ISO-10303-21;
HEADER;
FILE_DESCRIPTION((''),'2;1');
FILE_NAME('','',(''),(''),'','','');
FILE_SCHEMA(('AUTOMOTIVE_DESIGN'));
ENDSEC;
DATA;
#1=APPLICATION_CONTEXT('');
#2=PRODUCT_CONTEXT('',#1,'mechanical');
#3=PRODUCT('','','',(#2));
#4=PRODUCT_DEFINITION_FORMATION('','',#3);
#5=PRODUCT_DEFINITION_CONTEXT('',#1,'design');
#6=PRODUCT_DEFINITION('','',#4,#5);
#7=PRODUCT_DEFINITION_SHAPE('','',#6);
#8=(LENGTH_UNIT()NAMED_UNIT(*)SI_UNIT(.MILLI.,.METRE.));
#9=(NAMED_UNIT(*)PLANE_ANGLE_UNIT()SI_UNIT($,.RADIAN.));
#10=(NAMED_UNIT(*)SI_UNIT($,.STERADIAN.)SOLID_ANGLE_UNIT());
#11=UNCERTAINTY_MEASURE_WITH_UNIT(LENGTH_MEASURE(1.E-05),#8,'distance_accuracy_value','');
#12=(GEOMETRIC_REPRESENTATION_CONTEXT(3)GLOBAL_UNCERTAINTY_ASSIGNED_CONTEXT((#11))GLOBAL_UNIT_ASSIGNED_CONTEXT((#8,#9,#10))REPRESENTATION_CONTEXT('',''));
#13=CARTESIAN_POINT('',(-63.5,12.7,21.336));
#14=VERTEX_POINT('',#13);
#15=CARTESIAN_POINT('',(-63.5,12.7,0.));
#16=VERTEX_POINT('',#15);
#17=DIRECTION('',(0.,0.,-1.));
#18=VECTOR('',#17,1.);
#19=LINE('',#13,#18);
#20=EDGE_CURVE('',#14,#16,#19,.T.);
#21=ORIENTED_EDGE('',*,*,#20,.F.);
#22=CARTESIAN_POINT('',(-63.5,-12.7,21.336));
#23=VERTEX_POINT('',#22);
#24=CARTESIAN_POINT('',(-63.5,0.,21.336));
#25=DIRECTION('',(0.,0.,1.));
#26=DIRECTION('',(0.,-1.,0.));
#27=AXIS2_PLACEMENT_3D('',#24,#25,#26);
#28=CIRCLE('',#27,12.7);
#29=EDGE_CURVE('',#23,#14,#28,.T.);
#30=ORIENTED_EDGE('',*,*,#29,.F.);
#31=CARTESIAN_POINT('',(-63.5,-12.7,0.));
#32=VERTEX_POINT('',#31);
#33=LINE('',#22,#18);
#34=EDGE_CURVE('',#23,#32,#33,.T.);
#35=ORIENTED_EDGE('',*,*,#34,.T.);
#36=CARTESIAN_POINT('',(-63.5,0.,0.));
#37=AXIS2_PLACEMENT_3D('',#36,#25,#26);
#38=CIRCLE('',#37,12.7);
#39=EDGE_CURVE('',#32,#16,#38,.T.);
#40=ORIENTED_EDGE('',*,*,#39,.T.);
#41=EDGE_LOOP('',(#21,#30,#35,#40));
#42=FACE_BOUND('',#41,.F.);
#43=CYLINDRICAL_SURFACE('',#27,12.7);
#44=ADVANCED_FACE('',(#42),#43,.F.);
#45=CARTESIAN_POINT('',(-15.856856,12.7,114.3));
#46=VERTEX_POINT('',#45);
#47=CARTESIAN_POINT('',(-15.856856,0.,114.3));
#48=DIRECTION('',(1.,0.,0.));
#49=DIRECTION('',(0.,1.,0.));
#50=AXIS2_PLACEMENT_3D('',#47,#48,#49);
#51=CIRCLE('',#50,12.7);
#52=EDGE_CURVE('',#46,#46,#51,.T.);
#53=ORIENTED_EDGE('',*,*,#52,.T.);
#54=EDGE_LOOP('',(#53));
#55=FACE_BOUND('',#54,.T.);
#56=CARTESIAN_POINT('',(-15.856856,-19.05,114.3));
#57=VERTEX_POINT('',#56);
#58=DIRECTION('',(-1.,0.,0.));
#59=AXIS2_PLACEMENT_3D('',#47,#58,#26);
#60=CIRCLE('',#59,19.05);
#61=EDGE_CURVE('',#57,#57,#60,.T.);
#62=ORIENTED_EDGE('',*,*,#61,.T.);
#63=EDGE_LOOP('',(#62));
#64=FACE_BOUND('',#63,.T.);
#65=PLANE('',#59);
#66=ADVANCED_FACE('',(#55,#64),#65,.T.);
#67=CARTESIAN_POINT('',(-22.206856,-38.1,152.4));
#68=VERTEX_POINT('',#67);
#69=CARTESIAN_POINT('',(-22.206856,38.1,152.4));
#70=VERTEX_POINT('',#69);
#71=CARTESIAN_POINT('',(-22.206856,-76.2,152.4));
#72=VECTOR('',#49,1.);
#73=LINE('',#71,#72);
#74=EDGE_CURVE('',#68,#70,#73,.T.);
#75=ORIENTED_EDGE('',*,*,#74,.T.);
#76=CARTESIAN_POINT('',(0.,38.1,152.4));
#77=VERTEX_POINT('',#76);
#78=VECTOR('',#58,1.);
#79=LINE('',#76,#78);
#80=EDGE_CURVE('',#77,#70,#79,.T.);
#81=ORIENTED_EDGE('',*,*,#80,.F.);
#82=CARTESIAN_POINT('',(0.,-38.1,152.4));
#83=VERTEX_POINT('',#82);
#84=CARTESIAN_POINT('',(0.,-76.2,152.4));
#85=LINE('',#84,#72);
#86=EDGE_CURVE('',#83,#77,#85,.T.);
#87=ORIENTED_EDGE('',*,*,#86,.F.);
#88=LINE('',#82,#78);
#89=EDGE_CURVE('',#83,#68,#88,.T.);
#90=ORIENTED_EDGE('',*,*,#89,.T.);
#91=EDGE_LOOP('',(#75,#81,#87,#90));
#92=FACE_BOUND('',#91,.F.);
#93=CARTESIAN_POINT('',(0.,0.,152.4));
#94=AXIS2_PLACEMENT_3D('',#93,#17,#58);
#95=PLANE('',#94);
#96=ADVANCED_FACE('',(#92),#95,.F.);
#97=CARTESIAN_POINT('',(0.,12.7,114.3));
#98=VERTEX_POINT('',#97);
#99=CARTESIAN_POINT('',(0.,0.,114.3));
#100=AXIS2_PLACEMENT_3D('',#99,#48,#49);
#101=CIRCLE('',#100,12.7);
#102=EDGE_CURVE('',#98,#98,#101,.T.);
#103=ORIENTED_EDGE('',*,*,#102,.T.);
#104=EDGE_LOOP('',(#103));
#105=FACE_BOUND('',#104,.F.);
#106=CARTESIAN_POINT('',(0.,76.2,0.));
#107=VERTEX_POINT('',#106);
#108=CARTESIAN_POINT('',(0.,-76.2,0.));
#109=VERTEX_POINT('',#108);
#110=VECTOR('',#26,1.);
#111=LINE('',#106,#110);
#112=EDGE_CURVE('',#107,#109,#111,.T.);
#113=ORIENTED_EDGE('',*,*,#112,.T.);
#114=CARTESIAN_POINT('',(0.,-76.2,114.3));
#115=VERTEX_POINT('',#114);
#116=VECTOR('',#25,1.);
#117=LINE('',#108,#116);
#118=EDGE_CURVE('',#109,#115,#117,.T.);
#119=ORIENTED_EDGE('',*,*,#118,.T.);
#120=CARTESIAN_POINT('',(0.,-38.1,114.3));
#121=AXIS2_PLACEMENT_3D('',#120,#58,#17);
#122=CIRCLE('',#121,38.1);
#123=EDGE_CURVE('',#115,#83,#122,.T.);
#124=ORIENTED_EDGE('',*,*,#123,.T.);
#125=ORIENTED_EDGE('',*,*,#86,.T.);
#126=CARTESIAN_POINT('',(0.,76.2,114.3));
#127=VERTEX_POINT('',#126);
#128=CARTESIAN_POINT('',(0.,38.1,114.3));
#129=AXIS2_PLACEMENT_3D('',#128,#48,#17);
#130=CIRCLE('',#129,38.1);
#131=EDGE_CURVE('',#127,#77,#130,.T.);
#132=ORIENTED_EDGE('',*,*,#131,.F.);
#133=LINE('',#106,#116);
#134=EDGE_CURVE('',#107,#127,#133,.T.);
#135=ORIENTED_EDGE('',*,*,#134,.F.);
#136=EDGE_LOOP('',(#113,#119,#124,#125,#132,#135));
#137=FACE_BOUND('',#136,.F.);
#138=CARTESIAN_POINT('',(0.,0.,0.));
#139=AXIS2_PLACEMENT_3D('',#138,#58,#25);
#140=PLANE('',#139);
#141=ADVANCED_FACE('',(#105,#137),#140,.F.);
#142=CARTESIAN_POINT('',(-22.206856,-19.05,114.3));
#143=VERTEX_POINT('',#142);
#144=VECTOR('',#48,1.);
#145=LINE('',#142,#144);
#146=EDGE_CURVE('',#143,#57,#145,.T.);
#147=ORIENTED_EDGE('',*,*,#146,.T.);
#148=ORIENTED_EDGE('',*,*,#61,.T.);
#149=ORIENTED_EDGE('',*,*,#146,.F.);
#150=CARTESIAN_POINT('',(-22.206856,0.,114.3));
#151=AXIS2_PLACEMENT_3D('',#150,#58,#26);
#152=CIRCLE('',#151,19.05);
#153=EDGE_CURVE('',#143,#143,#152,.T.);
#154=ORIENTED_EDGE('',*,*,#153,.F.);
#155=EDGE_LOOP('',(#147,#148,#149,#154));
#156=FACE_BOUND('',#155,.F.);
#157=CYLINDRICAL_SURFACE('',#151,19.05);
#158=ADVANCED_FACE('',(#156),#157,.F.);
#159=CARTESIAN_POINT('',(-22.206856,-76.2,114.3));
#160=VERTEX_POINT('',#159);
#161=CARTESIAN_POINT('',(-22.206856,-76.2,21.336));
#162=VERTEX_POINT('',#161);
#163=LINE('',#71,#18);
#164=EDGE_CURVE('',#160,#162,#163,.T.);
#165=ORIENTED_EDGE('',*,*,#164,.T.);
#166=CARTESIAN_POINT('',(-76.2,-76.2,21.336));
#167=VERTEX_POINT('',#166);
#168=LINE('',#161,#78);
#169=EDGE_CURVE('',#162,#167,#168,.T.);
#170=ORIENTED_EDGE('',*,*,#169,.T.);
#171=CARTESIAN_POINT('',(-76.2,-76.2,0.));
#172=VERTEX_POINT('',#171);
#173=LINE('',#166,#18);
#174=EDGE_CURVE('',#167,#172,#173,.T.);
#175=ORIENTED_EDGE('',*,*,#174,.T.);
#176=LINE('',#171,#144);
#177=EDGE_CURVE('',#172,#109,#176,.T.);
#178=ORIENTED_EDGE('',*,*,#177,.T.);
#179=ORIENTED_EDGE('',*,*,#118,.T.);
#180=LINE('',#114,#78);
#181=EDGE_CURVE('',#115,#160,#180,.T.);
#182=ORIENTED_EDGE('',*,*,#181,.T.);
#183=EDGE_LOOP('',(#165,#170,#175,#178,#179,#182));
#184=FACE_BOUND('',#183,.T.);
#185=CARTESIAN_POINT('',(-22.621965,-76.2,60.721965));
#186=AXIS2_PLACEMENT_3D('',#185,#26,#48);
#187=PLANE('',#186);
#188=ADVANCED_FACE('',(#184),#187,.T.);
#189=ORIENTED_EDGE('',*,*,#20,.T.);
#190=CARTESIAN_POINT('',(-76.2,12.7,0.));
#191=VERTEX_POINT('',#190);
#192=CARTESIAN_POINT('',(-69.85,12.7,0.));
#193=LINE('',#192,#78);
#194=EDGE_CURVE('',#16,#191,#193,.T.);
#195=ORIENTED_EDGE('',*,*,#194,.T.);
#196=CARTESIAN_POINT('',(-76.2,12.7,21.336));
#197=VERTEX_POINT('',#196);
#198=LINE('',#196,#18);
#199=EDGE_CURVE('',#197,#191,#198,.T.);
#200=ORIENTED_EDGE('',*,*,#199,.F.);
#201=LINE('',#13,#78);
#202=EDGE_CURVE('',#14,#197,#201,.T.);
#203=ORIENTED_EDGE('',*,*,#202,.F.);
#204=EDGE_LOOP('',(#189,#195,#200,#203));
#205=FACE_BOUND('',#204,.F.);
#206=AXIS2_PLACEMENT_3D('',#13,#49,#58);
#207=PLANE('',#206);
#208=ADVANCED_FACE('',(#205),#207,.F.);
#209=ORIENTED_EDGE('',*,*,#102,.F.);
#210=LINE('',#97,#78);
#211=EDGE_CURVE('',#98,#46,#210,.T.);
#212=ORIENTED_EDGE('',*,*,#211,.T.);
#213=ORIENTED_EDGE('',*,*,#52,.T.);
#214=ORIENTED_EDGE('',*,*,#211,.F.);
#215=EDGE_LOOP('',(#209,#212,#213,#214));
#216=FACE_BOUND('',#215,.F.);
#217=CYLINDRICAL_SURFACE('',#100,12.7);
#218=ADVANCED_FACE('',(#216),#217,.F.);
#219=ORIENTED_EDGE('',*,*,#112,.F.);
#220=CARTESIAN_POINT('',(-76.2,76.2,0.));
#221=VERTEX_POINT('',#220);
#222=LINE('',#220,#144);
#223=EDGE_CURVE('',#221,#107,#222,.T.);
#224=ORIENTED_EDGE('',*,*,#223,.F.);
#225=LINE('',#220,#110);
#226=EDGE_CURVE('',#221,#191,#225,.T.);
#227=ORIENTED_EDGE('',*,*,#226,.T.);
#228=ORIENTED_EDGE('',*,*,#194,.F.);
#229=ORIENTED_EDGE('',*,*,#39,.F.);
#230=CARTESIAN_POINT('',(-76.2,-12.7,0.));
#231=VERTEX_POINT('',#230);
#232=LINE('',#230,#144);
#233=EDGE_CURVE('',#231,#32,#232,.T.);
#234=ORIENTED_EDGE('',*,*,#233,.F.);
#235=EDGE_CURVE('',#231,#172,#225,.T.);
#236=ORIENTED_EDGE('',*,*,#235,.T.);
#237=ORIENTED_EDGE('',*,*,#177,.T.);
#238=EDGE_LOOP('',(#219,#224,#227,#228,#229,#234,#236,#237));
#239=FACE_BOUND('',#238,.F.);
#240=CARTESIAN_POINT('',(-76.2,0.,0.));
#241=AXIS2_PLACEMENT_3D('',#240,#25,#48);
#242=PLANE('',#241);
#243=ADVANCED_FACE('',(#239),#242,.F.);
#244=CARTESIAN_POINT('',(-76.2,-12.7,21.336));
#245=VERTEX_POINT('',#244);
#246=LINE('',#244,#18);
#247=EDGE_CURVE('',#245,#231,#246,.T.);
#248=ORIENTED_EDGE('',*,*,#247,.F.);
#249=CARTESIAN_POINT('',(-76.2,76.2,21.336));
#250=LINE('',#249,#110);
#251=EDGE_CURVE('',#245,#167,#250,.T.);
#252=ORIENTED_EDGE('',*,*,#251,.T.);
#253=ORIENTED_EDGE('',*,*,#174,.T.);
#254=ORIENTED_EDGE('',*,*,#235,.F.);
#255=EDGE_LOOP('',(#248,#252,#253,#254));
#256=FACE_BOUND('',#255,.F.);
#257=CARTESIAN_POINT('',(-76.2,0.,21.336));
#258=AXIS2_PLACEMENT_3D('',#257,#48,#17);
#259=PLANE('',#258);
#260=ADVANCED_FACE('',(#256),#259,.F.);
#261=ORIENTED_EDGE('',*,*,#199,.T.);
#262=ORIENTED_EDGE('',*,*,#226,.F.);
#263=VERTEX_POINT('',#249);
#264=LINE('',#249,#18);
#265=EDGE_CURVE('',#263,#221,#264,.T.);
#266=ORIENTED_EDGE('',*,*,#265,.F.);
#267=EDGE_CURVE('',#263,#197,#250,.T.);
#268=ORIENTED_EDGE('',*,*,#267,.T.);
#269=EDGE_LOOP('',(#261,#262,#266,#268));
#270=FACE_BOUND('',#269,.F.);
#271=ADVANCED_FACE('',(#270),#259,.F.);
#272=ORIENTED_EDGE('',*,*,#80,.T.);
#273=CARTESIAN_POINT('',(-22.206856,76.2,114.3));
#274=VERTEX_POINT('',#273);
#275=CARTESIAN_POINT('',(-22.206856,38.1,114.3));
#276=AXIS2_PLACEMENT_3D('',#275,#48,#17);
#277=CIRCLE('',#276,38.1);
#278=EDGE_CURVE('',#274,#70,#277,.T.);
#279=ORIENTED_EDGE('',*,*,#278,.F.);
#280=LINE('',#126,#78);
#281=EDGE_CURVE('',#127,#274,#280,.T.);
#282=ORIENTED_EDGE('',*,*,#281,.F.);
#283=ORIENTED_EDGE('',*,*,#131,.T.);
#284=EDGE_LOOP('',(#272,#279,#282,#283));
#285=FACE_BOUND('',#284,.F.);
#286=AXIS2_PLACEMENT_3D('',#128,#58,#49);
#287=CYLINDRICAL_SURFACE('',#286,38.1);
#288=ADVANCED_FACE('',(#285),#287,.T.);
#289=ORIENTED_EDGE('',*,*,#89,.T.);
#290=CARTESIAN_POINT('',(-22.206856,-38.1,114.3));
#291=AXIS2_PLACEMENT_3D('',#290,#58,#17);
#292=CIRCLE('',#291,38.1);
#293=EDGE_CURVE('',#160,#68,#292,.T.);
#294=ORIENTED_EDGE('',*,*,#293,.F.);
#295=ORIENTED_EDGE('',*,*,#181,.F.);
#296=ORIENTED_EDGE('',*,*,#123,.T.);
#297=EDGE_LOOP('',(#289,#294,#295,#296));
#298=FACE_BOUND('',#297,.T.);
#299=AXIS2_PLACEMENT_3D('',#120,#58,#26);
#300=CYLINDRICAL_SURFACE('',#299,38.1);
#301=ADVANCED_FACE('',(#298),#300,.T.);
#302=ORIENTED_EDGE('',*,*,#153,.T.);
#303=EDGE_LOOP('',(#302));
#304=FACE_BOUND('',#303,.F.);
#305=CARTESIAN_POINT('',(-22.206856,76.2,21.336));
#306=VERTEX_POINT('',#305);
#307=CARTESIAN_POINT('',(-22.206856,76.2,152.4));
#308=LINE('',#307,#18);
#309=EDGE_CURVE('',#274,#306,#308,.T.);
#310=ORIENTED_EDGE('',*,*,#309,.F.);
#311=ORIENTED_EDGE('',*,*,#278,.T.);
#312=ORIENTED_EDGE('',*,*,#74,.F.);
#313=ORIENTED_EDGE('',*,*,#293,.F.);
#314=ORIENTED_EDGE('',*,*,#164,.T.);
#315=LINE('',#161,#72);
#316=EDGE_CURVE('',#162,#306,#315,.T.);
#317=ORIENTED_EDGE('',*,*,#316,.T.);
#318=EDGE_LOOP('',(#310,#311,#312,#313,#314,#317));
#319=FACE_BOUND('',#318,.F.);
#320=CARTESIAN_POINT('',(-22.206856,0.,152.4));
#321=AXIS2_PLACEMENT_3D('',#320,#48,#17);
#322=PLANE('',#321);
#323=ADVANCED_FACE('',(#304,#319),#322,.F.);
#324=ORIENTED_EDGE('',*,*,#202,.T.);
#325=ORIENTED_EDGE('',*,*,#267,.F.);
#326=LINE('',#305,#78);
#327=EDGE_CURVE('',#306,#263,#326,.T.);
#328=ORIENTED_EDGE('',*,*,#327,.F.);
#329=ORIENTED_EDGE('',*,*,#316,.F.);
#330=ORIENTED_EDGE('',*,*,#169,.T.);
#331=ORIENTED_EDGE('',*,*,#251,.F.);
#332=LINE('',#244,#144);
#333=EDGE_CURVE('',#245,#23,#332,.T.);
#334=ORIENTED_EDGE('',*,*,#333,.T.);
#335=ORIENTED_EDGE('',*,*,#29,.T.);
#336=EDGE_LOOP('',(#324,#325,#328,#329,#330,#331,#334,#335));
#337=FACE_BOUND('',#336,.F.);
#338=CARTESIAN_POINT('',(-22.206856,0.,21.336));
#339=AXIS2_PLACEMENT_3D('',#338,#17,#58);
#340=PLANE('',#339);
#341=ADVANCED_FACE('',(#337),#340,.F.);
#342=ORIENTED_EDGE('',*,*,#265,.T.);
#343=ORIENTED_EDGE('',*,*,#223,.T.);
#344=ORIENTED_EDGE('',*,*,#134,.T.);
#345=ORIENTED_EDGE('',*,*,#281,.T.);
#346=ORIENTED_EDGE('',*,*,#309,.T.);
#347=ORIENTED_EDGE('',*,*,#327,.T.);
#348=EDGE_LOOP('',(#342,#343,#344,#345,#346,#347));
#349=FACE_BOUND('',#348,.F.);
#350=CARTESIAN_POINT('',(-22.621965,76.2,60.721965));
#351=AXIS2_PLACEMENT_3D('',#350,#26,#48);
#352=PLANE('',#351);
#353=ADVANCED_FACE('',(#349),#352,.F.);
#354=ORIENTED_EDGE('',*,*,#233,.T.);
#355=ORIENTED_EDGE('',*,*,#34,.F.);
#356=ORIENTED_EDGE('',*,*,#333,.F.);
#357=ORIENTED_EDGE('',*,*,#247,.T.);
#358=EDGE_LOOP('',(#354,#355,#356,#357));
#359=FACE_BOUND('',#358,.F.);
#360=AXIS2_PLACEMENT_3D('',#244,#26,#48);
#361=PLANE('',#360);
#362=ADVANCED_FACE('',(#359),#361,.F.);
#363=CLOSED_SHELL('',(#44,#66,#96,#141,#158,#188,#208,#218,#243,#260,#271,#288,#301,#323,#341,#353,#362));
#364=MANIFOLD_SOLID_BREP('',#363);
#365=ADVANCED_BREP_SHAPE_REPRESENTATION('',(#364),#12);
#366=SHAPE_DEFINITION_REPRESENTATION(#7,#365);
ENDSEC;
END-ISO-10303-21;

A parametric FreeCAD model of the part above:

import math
import FreeCAD as App
import Part
import Sketcher

V = App.Vector
Q = App.Units.Quantity


def edges_at(feature, points):
    """Names of the edges that pass closest to the given points."""
    edges = feature.Shape.Edges
    near = lambda p: min(range(len(edges)), key=lambda i: edges[i].distToShape(Part.Vertex(*p))[0])
    return sorted({f"Edge{near(p) + 1}" for p in points})


def add_polygon(sketch, points):
    """Adds a closed chain of lines whose ends are joined by coincident constraints."""
    first, n = sketch.GeometryCount, len(points)
    for a, b in zip(points, points[1:] + points[:1]):
        sketch.addGeometry(Part.LineSegment(App.Vector(*a, 0), App.Vector(*b, 0)), False)
    for i in range(n):
        sketch.addConstraint(Sketcher.Constraint("Coincident", first + i, 2, first + (i + 1) % n, 1))

doc = App.newDocument("Part")
body = doc.addObject("PartDesign::Body", "Body")

sketch1 = body.newObject("Sketcher::SketchObject", "Sketch")
sketch1.AttachmentSupport = (doc.getObject("XZ_Plane"), [""])
sketch1.MapMode = "FlatFace"
add_polygon(sketch1, [(-76, 0), (0, 0), (0, 152), (-22, 152), (-22, 21), (-76, 21)])
sketch1.addConstraint([
    Sketcher.Constraint("Horizontal", 0),
    Sketcher.Constraint("Vertical", 1),
    Sketcher.Constraint("Horizontal", 2),
    Sketcher.Constraint("Vertical", 3),
    Sketcher.Constraint("Horizontal", 4),
    Sketcher.Constraint("Vertical", 5),
    Sketcher.Constraint("Coincident", 0, 2, -1, 1),
    Sketcher.Constraint("DistanceX", 0, 1, 0, 2, Q("3 in")),
    Sketcher.Constraint("DistanceY", 1, 1, 1, 2, Q("6 in")),
    Sketcher.Constraint("DistanceY", 3, 2, 3, 1, Q("5.16 in")),
    Sketcher.Constraint("DistanceX", 2, 2, 2, 1, Q("22.206856 mm")),
])
pad1 = body.newObject("PartDesign::Pad", "Pad")
pad1.Profile = sketch1
pad1.Length = Q("3 in")
pad1.Reversed = True

sketch2 = body.newObject("Sketcher::SketchObject", "Sketch001")
sketch2.AttachmentSupport = (doc.getObject("XZ_Plane"), [""])
sketch2.MapMode = "FlatFace"
add_polygon(sketch2, [(-22, 21), (-76, 21), (-76, 0), (0, 0), (0, 152), (-22, 152)])
sketch2.addConstraint([
    Sketcher.Constraint("Horizontal", 0),
    Sketcher.Constraint("Vertical", 1),
    Sketcher.Constraint("Horizontal", 2),
    Sketcher.Constraint("Vertical", 3),
    Sketcher.Constraint("Horizontal", 4),
    Sketcher.Constraint("Vertical", 5),
    Sketcher.Constraint("Coincident", 2, 2, -1, 1),
    Sketcher.Constraint("DistanceX", 2, 1, 2, 2, Q("3 in")),
    Sketcher.Constraint("DistanceY", 3, 1, 3, 2, Q("6 in")),
    Sketcher.Constraint("DistanceY", 1, 2, 1, 1, Q("0.84 in")),
    Sketcher.Constraint("DistanceX", 0, 2, 0, 1, Q("53.993144 mm")),
])
pad2 = body.newObject("PartDesign::Pad", "Pad001")
pad2.Profile = sketch2
pad2.Length = Q("3 in")

sketch3 = body.newObject("Sketcher::SketchObject", "Sketch002")
sketch3.AttachmentSupport = (doc.getObject("YZ_Plane"), [""])
sketch3.MapMode = "FlatFace"
sketch3.addGeometry(Part.Circle(V(0, 114, 0), V(0, 0, 1), 13), False)
sketch3.addConstraint([
    Sketcher.Constraint("PointOnObject", 0, 3, -2),
    Sketcher.Constraint("Diameter", 0, Q("1 in")),
    Sketcher.Constraint("DistanceY", -1, 1, 0, 3, Q("4.5 in")),
])
pocket1 = body.newObject("PartDesign::Pocket", "Pocket")
pocket1.Profile = sketch3
pocket1.Type = "ThroughAll"

sketch4 = body.newObject("Sketcher::SketchObject", "Sketch003")
sketch4.AttachmentSupport = (doc.getObject("XY_Plane"), [""])
sketch4.MapMode = "FlatFace"
sketch4.AttachmentOffset = App.Placement(V(0, 0, 0.84 * 25.4), App.Rotation())
sketch4.addGeometry([
    Part.LineSegment(V(-64, 13, 0), V(-76, 13, 0)),
    Part.LineSegment(V(-76, 13, 0), V(-76, -13, 0)),
    Part.LineSegment(V(-76, -13, 0), V(-64, -13, 0)),
    Part.ArcOfCircle(Part.Circle(V(-64, 0, 0), V(0, 0, 1), 13), math.radians(-90), math.radians(90)),
], False)
sketch4.addConstraint([
    Sketcher.Constraint("Coincident", 0, 2, 1, 1),
    Sketcher.Constraint("Coincident", 1, 2, 2, 1),
    Sketcher.Constraint("Tangent", 2, 2, 3, 1),
    Sketcher.Constraint("Tangent", 3, 2, 0, 1),
    Sketcher.Constraint("Horizontal", 0),
    Sketcher.Constraint("Vertical", 1),
    Sketcher.Constraint("Horizontal", 2),
    Sketcher.Constraint("PointOnObject", 3, 3, -1),
    Sketcher.Constraint("Radius", 3, Q("0.5 in")),
    Sketcher.Constraint("DistanceX", 0, 2, 0, 1, Q("0.5 in")),
    Sketcher.Constraint("DistanceX", 0, 2, -1, 1, Q("3 in")),
])
pocket2 = body.newObject("PartDesign::Pocket", "Pocket001")
pocket2.Profile = sketch4
pocket2.Length = Q("1 in")
doc.recompute()

fillet = body.newObject("PartDesign::Fillet", "Fillet")
fillet.Base = (pocket2, edges_at(pocket2, [(-11.103, -76.2, 152.4), (-11.103, 76.2, 152.4)]))
fillet.Radius = Q("1.5 in")

sketch5 = body.newObject("Sketcher::SketchObject", "Sketch004")
sketch5.AttachmentSupport = (doc.getObject("YZ_Plane"), [""])
sketch5.MapMode = "FlatFace"
sketch5.AttachmentOffset = App.Placement(V(0, 0, -22.206856), App.Rotation())
sketch5.addGeometry(Part.Circle(V(0, 114, 0), V(0, 0, 1), 19), False)
sketch5.addConstraint([
    Sketcher.Constraint("PointOnObject", 0, 3, -2),
    Sketcher.Constraint("Diameter", 0, Q("1.5 in")),
    Sketcher.Constraint("DistanceY", -1, 1, 0, 3, Q("4.5 in")),
])
pocket3 = body.newObject("PartDesign::Pocket", "Pocket002")
pocket3.Profile = sketch5
pocket3.Length = Q("0.25 in")
pocket3.Reversed = True

doc.recompute()
